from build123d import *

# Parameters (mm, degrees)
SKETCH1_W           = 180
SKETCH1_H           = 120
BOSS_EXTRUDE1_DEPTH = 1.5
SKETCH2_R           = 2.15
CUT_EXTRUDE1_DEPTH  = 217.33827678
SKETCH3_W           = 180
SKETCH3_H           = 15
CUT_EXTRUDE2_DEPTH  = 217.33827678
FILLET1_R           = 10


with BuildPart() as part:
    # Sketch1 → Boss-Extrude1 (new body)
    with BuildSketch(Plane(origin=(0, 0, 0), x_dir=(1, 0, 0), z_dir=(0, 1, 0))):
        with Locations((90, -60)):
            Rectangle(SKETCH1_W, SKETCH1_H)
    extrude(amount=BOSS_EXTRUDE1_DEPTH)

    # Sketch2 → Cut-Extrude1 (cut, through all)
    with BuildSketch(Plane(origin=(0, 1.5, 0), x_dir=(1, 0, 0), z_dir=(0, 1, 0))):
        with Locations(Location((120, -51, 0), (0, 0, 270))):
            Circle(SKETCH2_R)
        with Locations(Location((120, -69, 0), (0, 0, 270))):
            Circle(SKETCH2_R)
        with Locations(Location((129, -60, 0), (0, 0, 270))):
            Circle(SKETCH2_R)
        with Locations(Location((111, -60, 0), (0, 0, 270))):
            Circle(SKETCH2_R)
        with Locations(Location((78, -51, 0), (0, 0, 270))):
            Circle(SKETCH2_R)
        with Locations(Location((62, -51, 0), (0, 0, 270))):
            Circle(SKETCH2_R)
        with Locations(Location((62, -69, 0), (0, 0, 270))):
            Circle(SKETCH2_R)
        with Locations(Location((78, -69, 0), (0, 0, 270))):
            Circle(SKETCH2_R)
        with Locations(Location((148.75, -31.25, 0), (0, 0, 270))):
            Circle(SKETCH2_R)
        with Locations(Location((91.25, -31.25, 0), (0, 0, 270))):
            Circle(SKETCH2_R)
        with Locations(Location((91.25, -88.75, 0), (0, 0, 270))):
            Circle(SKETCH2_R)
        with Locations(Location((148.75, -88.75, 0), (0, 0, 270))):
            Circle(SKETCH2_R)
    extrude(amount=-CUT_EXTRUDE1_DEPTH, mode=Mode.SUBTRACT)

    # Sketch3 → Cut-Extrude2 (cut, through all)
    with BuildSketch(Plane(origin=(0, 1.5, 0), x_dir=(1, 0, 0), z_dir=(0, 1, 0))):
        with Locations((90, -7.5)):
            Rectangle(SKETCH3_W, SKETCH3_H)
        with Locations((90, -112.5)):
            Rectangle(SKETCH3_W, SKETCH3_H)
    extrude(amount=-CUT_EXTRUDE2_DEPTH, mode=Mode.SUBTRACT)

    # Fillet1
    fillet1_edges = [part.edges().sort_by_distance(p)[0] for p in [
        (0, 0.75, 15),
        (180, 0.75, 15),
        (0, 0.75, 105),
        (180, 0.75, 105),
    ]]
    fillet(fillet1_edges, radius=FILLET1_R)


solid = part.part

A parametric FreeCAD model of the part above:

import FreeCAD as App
import Part
import Sketcher

V = App.Vector
Q = App.Units.Quantity


def edges_at(feature, points):
    """Names of the edges that pass closest to the given points."""
    edges = feature.Shape.Edges
    near = lambda p: min(range(len(edges)), key=lambda i: edges[i].distToShape(Part.Vertex(*p))[0])
    return sorted({f"Edge{near(p) + 1}" for p in points})

doc = App.newDocument("Part")
body = doc.addObject("PartDesign::Body", "Body")

# Sketch on XZ plane
sketch1 = doc.addObject("Sketcher::SketchObject", "Sketch")
body.addObject(sketch1)
sketch1.AttachmentSupport = (doc.XZ_Plane, [""])
sketch1.MapMode = "FlatFace"
sketch1.addGeometry([
    Part.LineSegment(V(0, 0, 0), V(0, 120, 0)),
    Part.LineSegment(V(0, 120, 0), V(180, 120, 0)),
    Part.LineSegment(V(180, 120, 0), V(180, 0, 0)),
    Part.LineSegment(V(180, 0, 0), V(0, 0, 0)),
], False)
sketch1.addConstraint([
    Sketcher.Constraint("Coincident", 0, 2, 1, 1),
    Sketcher.Constraint("Coincident", 1, 2, 2, 1),
    Sketcher.Constraint("Coincident", 2, 2, 3, 1),
    Sketcher.Constraint("Coincident", 3, 2, 0, 1),
    Sketcher.Constraint("Vertical", 0),
    Sketcher.Constraint("Horizontal", 1),
    Sketcher.Constraint("Vertical", 2),
    Sketcher.Constraint("Horizontal", 3),
    Sketcher.Constraint("Coincident", 3, 2, -1, 1),
    Sketcher.Constraint("DistanceX", 1, 1, 1, 2, Q("180 mm")),
    Sketcher.Constraint("DistanceY", 0, 1, 0, 2, Q("120 mm")),
])
pad1 = doc.addObject("PartDesign::Pad", "Pad")
body.addObject(pad1)
pad1.Profile = sketch1
pad1.Length = 1.5
pad1.Reversed = True

# Sketch on XZ plane
sketch2 = doc.addObject("Sketcher::SketchObject", "Sketch001")
body.addObject(sketch2)
sketch2.AttachmentSupport = (doc.XZ_Plane, [""])
sketch2.MapMode = "FlatFace"
sketch2.AttachmentOffset = App.Placement(V(0, 0, -1.5), App.Rotation())
sketch2.addGeometry([
    Part.Circle(V(120, 51, 0), V(0, 0, 1), 2.1),  # 0
    Part.Circle(V(120, 69, 0), V(0, 0, 1), 2.1),  # 1
    Part.Circle(V(129, 60, 0), V(0, 0, 1), 2.1),  # 2
    Part.Circle(V(111, 60, 0), V(0, 0, 1), 2.1),  # 3
    Part.Circle(V(78, 51, 0), V(0, 0, 1), 2.1),  # 4
    Part.Circle(V(62, 51, 0), V(0, 0, 1), 2.1),  # 5
    Part.Circle(V(62, 69, 0), V(0, 0, 1), 2.1),  # 6
    Part.Circle(V(78, 69, 0), V(0, 0, 1), 2.1),  # 7
    Part.Circle(V(148.8, 31.2, 0), V(0, 0, 1), 2.1),  # 8
    Part.Circle(V(91.2, 31.2, 0), V(0, 0, 1), 2.1),  # 9
    Part.Circle(V(91.2, 88.8, 0), V(0, 0, 1), 2.1),  # 10
    Part.Circle(V(148.8, 88.8, 0), V(0, 0, 1), 2.1),  # 11
], False)
sketch2.addConstraint([
    Sketcher.Constraint("Equal", 0, 1),
    Sketcher.Constraint("Equal", 1, 2),
    Sketcher.Constraint("Equal", 2, 3),
    Sketcher.Constraint("Equal", 3, 4),
    Sketcher.Constraint("Equal", 4, 5),
    Sketcher.Constraint("Equal", 5, 6),
    Sketcher.Constraint("Equal", 6, 7),
    Sketcher.Constraint("Equal", 7, 8),
    Sketcher.Constraint("Equal", 8, 9),
    Sketcher.Constraint("Equal", 9, 10),
    Sketcher.Constraint("Equal", 10, 11),
    Sketcher.Constraint("Horizontal", 2, 3, 3, 3),
    Sketcher.Constraint("Horizontal", 0, 3, 4, 3),
    Sketcher.Constraint("Horizontal", 4, 3, 5, 3),
    Sketcher.Constraint("Horizontal", 1, 3, 6, 3),
    Sketcher.Constraint("Horizontal", 6, 3, 7, 3),
    Sketcher.Constraint("Horizontal", 8, 3, 9, 3),
    Sketcher.Constraint("Horizontal", 10, 3, 11, 3),
    Sketcher.Constraint("Vertical", 0, 3, 1, 3),
    Sketcher.Constraint("Vertical", 5, 3, 6, 3),
    Sketcher.Constraint("Vertical", 4, 3, 7, 3),
    Sketcher.Constraint("Vertical", 9, 3, 10, 3),
    Sketcher.Constraint("Vertical", 8, 3, 11, 3),
    Sketcher.Constraint("Diameter", 0, Q("4.3 mm")),
    Sketcher.Constraint("DistanceX", -1, 1, 0, 3, Q("120 mm")),
    Sketcher.Constraint("DistanceY", -1, 1, 0, 3, Q("51 mm")),
    Sketcher.Constraint("DistanceY", -1, 1, 1, 3, Q("69 mm")),
    Sketcher.Constraint("DistanceX", -1, 1, 2, 3, Q("129 mm")),
    Sketcher.Constraint("DistanceY", -1, 1, 2, 3, Q("60 mm")),
    Sketcher.Constraint("DistanceX", -1, 1, 3, 3, Q("111 mm")),
    Sketcher.Constraint("DistanceX", -1, 1, 4, 3, Q("78 mm")),
    Sketcher.Constraint("DistanceX", -1, 1, 5, 3, Q("62 mm")),
    Sketcher.Constraint("DistanceY", 8, 3, 11, 3, Q("57.5 mm")),
    Sketcher.Constraint("DistanceX", -1, 1, 8, 3, Q("148.75 mm")),
    Sketcher.Constraint("DistanceY", -1, 1, 8, 3, Q("31.25 mm")),
    Sketcher.Constraint("DistanceX", -1, 1, 9, 3, Q("91.25 mm")),
])
pocket1 = doc.addObject("PartDesign::Pocket", "Pocket")
body.addObject(pocket1)
pocket1.Profile = sketch2
pocket1.Type = "ThroughAll"
pocket1.Reversed = True

# Sketch on XZ plane
sketch3 = doc.addObject("Sketcher::SketchObject", "Sketch002")
body.addObject(sketch3)
sketch3.AttachmentSupport = (doc.XZ_Plane, [""])
sketch3.MapMode = "FlatFace"
sketch3.AttachmentOffset = App.Placement(V(0, 0, -1.5), App.Rotation())
sketch3.addGeometry([
    Part.LineSegment(V(0, 0, 0), V(0, 15, 0)),  # 0
    Part.LineSegment(V(0, 15, 0), V(180, 15, 0)),  # 1
    Part.LineSegment(V(180, 15, 0), V(180, 0, 0)),  # 2
    Part.LineSegment(V(180, 0, 0), V(0, 0, 0)),  # 3
    Part.LineSegment(V(0, 105, 0), V(0, 120, 0)),  # 4
    Part.LineSegment(V(0, 120, 0), V(180, 120, 0)),  # 5
    Part.LineSegment(V(180, 120, 0), V(180, 105, 0)),  # 6
    Part.LineSegment(V(180, 105, 0), V(0, 105, 0)),  # 7
], False)
sketch3.addConstraint([
    Sketcher.Constraint("Coincident", 0, 2, 1, 1),
    Sketcher.Constraint("Coincident", 1, 2, 2, 1),
    Sketcher.Constraint("Coincident", 2, 2, 3, 1),
    Sketcher.Constraint("Coincident", 3, 2, 0, 1),
    Sketcher.Constraint("Coincident", 4, 2, 5, 1),
    Sketcher.Constraint("Coincident", 5, 2, 6, 1),
    Sketcher.Constraint("Coincident", 6, 2, 7, 1),
    Sketcher.Constraint("Coincident", 7, 2, 4, 1),
    Sketcher.Constraint("Vertical", 0),
    Sketcher.Constraint("Horizontal", 1),
    Sketcher.Constraint("Vertical", 2),
    Sketcher.Constraint("Horizontal", 3),
    Sketcher.Constraint("Vertical", 4),
    Sketcher.Constraint("Horizontal", 5),
    Sketcher.Constraint("Vertical", 6),
    Sketcher.Constraint("Horizontal", 7),
    Sketcher.Constraint("Coincident", 3, 2, -1, 1),
    Sketcher.Constraint("PointOnObject", 4, 2, -2),
    Sketcher.Constraint("Vertical", 2, 2, 5, 2),
    Sketcher.Constraint("Equal", 2, 4),
    Sketcher.Constraint("DistanceX", 1, 1, 1, 2, Q("180 mm")),
    Sketcher.Constraint("DistanceY", 0, 1, 0, 2, Q("15 mm")),
    Sketcher.Constraint("DistanceY", -1, 1, 4, 2, Q("120 mm")),
])
pocket2 = doc.addObject("PartDesign::Pocket", "Pocket001")
body.addObject(pocket2)
pocket2.Profile = sketch3
pocket2.Type = "ThroughAll"
pocket2.Reversed = True
doc.recompute()

fillet = doc.addObject("PartDesign::Fillet", "Fillet")
body.addObject(fillet)
fillet.Base = (pocket2, edges_at(pocket2, [
    (0, 0.75, 15),
    (180, 0.75, 15),
    (0, 0.75, 105),
    (180, 0.75, 105),
]))
fillet.Radius = 10

doc.recompute()
